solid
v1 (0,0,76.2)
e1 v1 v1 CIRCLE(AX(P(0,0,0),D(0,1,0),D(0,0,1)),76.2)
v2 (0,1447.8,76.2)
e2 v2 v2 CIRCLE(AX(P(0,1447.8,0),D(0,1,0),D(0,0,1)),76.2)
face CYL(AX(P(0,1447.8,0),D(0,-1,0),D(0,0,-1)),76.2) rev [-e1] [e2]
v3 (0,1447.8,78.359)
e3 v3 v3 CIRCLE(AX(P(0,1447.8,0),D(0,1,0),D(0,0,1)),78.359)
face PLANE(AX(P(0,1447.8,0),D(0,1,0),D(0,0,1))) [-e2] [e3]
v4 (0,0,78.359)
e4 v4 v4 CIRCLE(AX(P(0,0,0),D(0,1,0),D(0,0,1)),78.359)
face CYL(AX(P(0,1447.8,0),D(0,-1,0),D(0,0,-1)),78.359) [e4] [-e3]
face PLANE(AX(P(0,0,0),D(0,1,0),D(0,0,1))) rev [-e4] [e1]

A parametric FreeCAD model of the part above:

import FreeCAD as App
import Part
import Sketcher

V = App.Vector
Q = App.Units.Quantity

doc = App.newDocument("Part")
body = doc.addObject("PartDesign::Body", "Body")

sketch1 = body.newObject("Sketcher::SketchObject", "Sketch")
sketch1.AttachmentSupport = (doc.getObject("XZ_Plane"), [""])
sketch1.MapMode = "FlatFace"
sketch1.addGeometry([
    Part.Circle(V(0, 0, 0), V(0, 0, 1), 78.359),
    Part.Circle(V(0, 0, 0), V(0, 0, 1), 76.2),
], False)
sketch1.addConstraint([
    Sketcher.Constraint("Coincident", 0, 3, -1, 1),
    Sketcher.Constraint("Coincident", 1, 3, -1, 1),
    Sketcher.Constraint("Diameter", 1, Q("6 in")),
    Sketcher.Constraint("Diameter", 0, Q("6.17 in")),
])
pad1 = body.newObject("PartDesign::Pad", "Pad")
pad1.Profile = sketch1
pad1.Length = Q("57 in")
pad1.Reversed = True

doc.recompute()
